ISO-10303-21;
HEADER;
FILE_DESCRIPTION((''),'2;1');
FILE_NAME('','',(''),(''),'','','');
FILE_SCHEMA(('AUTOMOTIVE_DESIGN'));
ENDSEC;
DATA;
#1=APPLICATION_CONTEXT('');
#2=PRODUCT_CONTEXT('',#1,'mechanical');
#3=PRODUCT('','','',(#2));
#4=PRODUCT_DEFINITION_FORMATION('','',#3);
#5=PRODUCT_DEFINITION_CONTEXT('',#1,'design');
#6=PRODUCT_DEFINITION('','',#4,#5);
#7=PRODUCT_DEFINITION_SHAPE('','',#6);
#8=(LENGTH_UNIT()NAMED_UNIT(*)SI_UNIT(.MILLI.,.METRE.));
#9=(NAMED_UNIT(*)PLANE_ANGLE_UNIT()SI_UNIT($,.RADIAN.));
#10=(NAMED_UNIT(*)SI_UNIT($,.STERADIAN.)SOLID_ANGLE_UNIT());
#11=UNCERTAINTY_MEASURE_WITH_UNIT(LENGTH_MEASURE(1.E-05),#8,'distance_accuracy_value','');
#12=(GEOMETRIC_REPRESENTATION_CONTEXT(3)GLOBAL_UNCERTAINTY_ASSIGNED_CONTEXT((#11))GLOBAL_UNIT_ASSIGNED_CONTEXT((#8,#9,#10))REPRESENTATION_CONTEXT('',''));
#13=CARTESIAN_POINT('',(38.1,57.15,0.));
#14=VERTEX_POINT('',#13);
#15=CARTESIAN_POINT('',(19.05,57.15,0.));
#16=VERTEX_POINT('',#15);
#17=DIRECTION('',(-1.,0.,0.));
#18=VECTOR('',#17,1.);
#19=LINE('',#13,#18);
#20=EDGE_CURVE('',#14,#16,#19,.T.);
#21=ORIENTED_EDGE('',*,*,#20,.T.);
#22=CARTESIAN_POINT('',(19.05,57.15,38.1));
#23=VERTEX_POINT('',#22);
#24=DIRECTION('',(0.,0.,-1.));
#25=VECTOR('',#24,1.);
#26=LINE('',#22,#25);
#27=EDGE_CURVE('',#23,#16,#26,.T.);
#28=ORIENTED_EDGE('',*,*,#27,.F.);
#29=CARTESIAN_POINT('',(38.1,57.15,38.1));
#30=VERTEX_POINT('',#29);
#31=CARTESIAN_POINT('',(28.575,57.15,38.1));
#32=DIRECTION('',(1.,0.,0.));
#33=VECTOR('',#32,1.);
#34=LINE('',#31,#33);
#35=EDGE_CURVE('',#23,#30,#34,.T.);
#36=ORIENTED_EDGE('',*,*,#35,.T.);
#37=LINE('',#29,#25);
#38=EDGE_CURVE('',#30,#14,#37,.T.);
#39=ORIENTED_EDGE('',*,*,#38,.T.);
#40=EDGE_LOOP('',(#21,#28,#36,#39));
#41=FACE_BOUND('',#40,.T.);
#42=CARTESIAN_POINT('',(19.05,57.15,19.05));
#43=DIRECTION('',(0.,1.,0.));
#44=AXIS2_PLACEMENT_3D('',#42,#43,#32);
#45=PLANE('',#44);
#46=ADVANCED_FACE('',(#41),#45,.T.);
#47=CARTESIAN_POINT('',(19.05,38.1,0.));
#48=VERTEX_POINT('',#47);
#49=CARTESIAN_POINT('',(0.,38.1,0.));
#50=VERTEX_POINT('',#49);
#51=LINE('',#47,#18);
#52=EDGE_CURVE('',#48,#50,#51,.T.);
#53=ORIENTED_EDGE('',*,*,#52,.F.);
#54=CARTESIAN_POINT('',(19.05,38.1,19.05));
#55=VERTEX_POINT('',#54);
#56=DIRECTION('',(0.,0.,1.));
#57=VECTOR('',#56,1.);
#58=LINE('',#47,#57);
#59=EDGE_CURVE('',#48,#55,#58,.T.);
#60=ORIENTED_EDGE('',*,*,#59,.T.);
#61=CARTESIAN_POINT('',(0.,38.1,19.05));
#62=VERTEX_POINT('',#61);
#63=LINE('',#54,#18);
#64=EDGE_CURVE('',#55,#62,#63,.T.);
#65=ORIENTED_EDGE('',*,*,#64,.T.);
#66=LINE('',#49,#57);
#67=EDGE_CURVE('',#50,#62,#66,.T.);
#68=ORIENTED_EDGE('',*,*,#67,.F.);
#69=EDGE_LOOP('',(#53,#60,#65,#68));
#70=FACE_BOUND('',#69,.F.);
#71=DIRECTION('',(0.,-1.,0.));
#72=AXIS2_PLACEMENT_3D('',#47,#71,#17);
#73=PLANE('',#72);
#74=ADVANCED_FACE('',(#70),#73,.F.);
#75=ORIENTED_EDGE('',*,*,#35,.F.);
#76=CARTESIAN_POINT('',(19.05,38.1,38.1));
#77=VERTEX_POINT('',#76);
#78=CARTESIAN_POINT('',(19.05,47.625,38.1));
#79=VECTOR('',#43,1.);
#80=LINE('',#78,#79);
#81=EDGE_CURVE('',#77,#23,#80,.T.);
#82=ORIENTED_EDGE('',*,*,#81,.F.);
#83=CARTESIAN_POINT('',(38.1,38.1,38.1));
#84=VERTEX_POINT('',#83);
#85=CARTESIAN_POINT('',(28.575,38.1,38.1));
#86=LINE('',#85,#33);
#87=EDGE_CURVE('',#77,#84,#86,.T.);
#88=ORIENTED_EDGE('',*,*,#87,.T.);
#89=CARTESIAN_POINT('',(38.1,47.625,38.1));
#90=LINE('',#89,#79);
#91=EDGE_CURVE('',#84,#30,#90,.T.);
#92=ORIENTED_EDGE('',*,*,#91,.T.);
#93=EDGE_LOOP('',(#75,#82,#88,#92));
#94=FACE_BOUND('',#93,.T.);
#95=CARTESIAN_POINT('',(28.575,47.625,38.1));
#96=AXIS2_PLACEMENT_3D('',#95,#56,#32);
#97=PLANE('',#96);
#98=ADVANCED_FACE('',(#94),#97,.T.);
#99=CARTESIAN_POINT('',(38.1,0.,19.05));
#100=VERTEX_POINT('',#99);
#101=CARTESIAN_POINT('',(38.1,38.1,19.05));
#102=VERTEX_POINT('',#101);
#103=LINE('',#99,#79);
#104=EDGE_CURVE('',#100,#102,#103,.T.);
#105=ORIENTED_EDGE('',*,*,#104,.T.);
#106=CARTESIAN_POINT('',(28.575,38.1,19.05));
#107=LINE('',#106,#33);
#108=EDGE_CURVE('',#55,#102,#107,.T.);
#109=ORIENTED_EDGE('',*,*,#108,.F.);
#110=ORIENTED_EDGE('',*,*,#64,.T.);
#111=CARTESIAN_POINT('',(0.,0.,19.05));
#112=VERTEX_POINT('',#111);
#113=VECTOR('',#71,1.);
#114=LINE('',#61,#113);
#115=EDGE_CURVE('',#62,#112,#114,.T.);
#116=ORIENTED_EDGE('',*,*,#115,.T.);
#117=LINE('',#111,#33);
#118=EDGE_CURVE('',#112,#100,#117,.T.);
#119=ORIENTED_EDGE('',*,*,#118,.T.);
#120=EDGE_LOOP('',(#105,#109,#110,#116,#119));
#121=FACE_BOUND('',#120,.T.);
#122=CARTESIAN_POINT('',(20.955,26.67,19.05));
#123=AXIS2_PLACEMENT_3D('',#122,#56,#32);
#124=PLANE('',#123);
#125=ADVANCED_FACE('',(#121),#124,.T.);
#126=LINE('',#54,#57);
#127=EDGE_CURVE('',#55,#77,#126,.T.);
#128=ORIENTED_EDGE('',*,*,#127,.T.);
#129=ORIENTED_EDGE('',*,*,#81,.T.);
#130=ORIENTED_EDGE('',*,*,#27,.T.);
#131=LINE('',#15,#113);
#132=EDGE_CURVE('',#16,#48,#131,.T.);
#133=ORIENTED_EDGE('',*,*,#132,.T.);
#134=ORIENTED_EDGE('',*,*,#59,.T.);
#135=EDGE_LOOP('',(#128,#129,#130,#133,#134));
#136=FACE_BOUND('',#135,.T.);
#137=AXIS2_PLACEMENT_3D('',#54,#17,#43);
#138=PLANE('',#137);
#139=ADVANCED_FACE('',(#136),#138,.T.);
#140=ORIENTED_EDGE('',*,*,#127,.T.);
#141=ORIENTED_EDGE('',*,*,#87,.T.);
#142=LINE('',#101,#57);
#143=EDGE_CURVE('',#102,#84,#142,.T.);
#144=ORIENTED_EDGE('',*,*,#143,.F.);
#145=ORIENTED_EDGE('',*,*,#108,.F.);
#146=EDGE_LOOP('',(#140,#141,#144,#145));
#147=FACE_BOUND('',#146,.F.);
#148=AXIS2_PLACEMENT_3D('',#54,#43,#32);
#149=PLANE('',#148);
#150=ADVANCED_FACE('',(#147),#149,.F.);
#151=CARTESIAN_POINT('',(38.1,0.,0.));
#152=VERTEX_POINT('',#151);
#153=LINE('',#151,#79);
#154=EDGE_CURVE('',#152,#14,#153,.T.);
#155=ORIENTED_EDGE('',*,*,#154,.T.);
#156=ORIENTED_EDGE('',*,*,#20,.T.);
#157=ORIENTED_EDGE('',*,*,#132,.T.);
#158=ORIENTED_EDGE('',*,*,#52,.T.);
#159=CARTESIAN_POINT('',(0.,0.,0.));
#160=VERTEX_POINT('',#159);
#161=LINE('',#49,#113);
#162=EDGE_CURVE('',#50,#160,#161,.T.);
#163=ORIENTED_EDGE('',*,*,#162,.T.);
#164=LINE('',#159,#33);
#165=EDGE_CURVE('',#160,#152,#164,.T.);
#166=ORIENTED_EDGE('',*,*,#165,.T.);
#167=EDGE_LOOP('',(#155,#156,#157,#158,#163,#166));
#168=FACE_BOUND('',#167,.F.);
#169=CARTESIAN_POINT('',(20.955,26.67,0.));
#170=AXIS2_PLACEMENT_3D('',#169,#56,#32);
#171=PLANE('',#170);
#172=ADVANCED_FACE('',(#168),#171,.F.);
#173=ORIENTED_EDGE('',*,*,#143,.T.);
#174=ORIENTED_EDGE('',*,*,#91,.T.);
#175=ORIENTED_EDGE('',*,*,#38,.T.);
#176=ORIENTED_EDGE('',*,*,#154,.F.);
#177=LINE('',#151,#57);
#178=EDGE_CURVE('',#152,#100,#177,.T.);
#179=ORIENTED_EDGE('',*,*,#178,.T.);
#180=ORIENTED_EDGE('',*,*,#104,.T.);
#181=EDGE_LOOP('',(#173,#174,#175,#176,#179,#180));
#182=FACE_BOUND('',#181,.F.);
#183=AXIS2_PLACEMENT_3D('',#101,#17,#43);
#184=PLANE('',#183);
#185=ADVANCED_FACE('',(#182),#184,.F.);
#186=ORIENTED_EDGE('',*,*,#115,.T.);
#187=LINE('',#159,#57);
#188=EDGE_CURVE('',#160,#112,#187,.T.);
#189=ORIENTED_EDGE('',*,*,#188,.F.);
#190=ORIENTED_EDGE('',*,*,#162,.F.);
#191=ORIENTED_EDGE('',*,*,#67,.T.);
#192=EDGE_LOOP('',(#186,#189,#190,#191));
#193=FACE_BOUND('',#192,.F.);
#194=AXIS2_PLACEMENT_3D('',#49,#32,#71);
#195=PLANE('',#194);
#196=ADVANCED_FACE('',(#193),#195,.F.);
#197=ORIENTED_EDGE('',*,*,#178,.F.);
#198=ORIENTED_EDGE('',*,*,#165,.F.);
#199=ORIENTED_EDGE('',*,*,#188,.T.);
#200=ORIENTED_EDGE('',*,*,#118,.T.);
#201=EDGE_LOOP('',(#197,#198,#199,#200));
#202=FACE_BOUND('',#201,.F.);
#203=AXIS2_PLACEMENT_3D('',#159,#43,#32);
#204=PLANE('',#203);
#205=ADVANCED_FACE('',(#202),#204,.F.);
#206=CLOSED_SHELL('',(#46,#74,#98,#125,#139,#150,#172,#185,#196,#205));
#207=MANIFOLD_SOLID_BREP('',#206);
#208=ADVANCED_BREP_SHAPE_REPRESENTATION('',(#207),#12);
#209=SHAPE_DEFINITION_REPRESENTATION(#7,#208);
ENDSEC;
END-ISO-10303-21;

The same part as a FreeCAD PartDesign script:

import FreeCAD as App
import Part
import Sketcher
Q = App.Units.Quantity


def add_polygon(sketch, points):
    """Adds a closed chain of lines whose ends are joined by coincident constraints."""
    first, n = sketch.GeometryCount, len(points)
    for a, b in zip(points, points[1:] + points[:1]):
        sketch.addGeometry(Part.LineSegment(App.Vector(*a, 0), App.Vector(*b, 0)), False)
    for i in range(n):
        sketch.addConstraint(Sketcher.Constraint("Coincident", first + i, 2, first + (i + 1) % n, 1))

doc = App.newDocument("Part")
body = doc.addObject("PartDesign::Body", "Body")

# Sketch on XY plane
sketch1 = doc.addObject("Sketcher::SketchObject", "Sketch")
body.addObject(sketch1)
sketch1.AttachmentSupport = (doc.XY_Plane, [""])
sketch1.MapMode = "FlatFace"
add_polygon(sketch1, [(0, 38), (0, 0), (38, 0), (38, 57), (19, 57), (19, 38)])  # lines 0-5
sketch1.addConstraint([
    Sketcher.Constraint("Vertical", 0),
    Sketcher.Constraint("Horizontal", 1),
    Sketcher.Constraint("Vertical", 2),
    Sketcher.Constraint("Horizontal", 3),
    Sketcher.Constraint("Vertical", 4),
    Sketcher.Constraint("Horizontal", 5),
    Sketcher.Constraint("Coincident", 0, 2, -1, 1),
    Sketcher.Constraint("Equal", 3, 5),
    Sketcher.Constraint("Equal", 1, 0),
    Sketcher.Constraint("Equal", 5, 4),
    Sketcher.Constraint("DistanceX", 1, 1, 1, 2, Q("1.5 in")),
])
pad1 = doc.addObject("PartDesign::Pad", "Pad")
body.addObject(pad1)
pad1.Profile = sketch1
pad1.Length = Q("0.75 in")

# Sketch on XY plane
sketch2 = doc.addObject("Sketcher::SketchObject", "Sketch001")
body.addObject(sketch2)
sketch2.AttachmentSupport = (doc.XY_Plane, [""])
sketch2.MapMode = "FlatFace"
sketch2.AttachmentOffset = App.Placement(App.Vector(0, 0, 0.75 * 25.4), App.Rotation())
add_polygon(sketch2, [(19, 57), (19, 38), (38, 38), (38, 57)])  # lines 0-3
sketch2.addConstraint([
    Sketcher.Constraint("Vertical", 0),
    Sketcher.Constraint("Horizontal", 1),
    Sketcher.Constraint("Vertical", 2),
    Sketcher.Constraint("Horizontal", 3),
    Sketcher.Constraint("Equal", 3, 0),
    Sketcher.Constraint("DistanceX", 1, 1, 1, 2, Q("0.75 in")),
    Sketcher.Constraint("DistanceY", -1, 1, 0, 2, Q("1.5 in")),
    Sketcher.Constraint("DistanceX", -1, 1, 1, 2, Q("1.5 in")),
])
pad2 = doc.addObject("PartDesign::Pad", "Pad001")
body.addObject(pad2)
pad2.Profile = sketch2
pad2.Length = Q("0.75 in")

doc.recompute()
